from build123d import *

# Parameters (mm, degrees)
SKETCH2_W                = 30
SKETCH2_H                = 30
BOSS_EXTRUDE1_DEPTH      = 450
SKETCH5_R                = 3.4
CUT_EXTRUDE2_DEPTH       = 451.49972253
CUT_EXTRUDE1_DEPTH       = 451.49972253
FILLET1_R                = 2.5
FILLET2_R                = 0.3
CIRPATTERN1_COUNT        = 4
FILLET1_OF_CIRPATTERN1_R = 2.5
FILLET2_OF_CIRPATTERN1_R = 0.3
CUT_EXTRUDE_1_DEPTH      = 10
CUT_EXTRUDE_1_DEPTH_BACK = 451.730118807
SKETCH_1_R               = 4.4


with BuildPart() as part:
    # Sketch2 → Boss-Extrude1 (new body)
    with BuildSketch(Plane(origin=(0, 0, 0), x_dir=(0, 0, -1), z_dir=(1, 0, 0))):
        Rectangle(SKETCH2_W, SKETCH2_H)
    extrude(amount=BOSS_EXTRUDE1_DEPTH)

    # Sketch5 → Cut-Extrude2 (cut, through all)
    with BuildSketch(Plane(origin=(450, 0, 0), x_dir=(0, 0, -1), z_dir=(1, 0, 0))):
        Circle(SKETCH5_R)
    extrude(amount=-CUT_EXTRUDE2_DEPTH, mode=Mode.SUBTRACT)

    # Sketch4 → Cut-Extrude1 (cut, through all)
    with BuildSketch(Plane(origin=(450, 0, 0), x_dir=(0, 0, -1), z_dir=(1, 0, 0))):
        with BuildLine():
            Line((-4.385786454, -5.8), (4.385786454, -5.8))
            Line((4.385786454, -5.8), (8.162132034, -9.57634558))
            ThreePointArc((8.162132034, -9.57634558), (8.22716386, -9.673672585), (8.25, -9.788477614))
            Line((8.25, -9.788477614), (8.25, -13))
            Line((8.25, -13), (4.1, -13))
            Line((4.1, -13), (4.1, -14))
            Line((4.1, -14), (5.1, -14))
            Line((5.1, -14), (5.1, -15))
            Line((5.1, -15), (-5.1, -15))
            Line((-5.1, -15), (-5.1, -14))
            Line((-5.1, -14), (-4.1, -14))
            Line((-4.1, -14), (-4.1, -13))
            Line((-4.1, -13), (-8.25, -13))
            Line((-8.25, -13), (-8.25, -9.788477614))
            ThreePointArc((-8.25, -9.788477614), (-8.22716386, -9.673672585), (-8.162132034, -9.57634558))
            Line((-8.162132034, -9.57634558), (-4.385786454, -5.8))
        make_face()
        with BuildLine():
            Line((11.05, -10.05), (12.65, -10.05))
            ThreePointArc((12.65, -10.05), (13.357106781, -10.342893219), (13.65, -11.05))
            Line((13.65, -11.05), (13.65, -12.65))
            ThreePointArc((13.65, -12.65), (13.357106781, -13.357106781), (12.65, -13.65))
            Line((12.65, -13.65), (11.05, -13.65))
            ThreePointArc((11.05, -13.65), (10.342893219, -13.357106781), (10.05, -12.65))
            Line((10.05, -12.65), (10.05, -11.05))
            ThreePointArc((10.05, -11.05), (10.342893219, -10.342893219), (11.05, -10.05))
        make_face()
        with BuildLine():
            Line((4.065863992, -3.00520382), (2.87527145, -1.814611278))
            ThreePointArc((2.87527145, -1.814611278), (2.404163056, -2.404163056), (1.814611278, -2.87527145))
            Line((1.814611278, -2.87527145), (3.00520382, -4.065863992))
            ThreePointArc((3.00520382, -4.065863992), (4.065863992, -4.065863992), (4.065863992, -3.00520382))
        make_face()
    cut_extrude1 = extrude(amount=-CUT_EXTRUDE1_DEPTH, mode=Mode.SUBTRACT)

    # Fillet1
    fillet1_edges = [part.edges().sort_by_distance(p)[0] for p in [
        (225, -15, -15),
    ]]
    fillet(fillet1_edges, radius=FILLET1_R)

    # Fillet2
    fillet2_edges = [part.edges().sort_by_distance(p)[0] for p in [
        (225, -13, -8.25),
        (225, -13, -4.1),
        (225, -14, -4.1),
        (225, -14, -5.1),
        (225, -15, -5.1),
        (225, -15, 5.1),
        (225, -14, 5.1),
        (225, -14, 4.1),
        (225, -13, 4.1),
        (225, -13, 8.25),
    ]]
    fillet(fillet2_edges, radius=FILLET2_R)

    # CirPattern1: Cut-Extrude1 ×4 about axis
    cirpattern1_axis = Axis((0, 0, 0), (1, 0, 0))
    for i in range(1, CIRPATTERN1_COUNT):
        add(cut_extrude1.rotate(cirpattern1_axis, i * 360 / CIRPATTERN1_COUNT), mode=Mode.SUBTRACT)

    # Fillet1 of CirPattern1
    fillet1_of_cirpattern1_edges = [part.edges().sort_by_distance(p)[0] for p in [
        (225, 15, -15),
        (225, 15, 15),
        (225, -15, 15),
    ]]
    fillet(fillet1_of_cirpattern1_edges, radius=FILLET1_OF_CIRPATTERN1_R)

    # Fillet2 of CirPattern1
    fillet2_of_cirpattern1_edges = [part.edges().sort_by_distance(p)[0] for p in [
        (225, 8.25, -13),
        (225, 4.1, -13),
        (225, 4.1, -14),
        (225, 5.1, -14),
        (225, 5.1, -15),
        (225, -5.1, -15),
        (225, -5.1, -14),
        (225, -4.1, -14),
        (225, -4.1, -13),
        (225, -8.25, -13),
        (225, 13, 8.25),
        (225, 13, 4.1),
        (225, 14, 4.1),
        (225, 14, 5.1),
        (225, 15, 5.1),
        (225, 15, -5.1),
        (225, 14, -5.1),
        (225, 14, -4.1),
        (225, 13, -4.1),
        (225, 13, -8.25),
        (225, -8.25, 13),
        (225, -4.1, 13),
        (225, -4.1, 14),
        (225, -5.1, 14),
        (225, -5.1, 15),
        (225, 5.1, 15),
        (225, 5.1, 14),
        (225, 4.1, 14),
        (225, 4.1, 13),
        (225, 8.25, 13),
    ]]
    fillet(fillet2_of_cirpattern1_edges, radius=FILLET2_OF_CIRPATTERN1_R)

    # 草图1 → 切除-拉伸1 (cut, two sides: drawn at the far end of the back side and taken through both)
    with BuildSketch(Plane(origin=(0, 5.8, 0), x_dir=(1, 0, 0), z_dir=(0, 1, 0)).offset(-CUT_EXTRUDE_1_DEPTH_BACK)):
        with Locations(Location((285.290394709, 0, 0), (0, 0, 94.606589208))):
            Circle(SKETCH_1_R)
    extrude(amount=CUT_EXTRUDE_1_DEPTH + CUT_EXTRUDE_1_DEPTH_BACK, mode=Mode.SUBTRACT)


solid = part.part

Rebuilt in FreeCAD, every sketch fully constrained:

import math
import FreeCAD as App
import Part
import Sketcher


def edges_at(feature, points):
    """Names of the edges that pass closest to the given points."""
    edges = feature.Shape.Edges
    near = lambda p: min(range(len(edges)), key=lambda i: edges[i].distToShape(Part.Vertex(*p))[0])
    return sorted({f"Edge{near(p) + 1}" for p in points})

doc = App.newDocument("Part")
body = doc.addObject("PartDesign::Body", "Body")

# Sketch on YZ plane
sketch1 = body.newObject("Sketcher::SketchObject", "Sketch")
sketch1.AttachmentSupport = (doc.getObject("YZ_Plane"), [""])
sketch1.MapMode = "FlatFace"
sketch1.addGeometry(Part.LineSegment(App.Vector(15, 15, 0), App.Vector(-15, 15, 0)), False)
sketch1.addGeometry(Part.LineSegment(App.Vector(-15, 15, 0), App.Vector(-15, -15, 0)), False)
sketch1.addGeometry(Part.LineSegment(App.Vector(-15, -15, 0), App.Vector(15, -15, 0)), False)
sketch1.addGeometry(Part.LineSegment(App.Vector(15, -15, 0), App.Vector(15, 15, 0)), False)
sketch1.addConstraint(Sketcher.Constraint("Coincident", 0, 2, 1, 1))
sketch1.addConstraint(Sketcher.Constraint("Coincident", 1, 2, 2, 1))
sketch1.addConstraint(Sketcher.Constraint("Coincident", 2, 2, 3, 1))
sketch1.addConstraint(Sketcher.Constraint("Coincident", 3, 2, 0, 1))
sketch1.addConstraint(Sketcher.Constraint("Horizontal", 0))
sketch1.addConstraint(Sketcher.Constraint("Vertical", 1))
sketch1.addConstraint(Sketcher.Constraint("Horizontal", 2))
sketch1.addConstraint(Sketcher.Constraint("Vertical", 3))
sketch1.addConstraint(Sketcher.Constraint("Symmetric", 0, 2, 2, 2, -1, 1))
sketch1.addConstraint(Sketcher.Constraint("Equal", 2, 1))
sketch1.addConstraint(Sketcher.Constraint("DistanceX", 0, 2, 0, 1, 30.0))
pad1 = body.newObject("PartDesign::Pad", "Pad")
pad1.Profile = sketch1
pad1.Length = 450

# Sketch on YZ plane
sketch2 = body.newObject("Sketcher::SketchObject", "Sketch001")
sketch2.AttachmentSupport = (doc.getObject("YZ_Plane"), [""])
sketch2.MapMode = "FlatFace"
sketch2.AttachmentOffset = App.Placement(App.Vector(0, 0, 450), App.Rotation())
sketch2.addGeometry(Part.Circle(App.Vector(0, 0, 0), App.Vector(0, 0, 1), 3.4), False)
sketch2.addConstraint(Sketcher.Constraint("Coincident", 0, 3, -1, 1))
sketch2.addConstraint(Sketcher.Constraint("Diameter", 0, 6.8))
pocket1 = body.newObject("PartDesign::Pocket", "Pocket")
pocket1.Profile = sketch2
pocket1.Type = "ThroughAll"

# Sketch on YZ plane
sketch3 = body.newObject("Sketcher::SketchObject", "Sketch002")
sketch3.AttachmentSupport = (doc.getObject("YZ_Plane"), [""])
sketch3.MapMode = "FlatFace"
sketch3.AttachmentOffset = App.Placement(App.Vector(0, 0, 450), App.Rotation())
sketch3.addGeometry(Part.LineSegment(App.Vector(-5.8, -4.39, 0), App.Vector(-5.8, 4.39, 0)), False)
sketch3.addGeometry(Part.LineSegment(App.Vector(-5.8, 4.39, 0), App.Vector(-9.58, 8.16, 0)), False)
sketch3.addGeometry(Part.ArcOfCircle(Part.Circle(App.Vector(-9.79, 7.95, 0), App.Vector(0, 0, 1), 0.3), math.radians(45), math.radians(90)), False)
sketch3.addGeometry(Part.LineSegment(App.Vector(-9.79, 8.25, 0), App.Vector(-13, 8.25, 0)), False)
sketch3.addGeometry(Part.LineSegment(App.Vector(-13, 8.25, 0), App.Vector(-13, 4.1, 0)), False)
sketch3.addGeometry(Part.LineSegment(App.Vector(-13, 4.1, 0), App.Vector(-14, 4.1, 0)), False)
sketch3.addGeometry(Part.LineSegment(App.Vector(-14, 4.1, 0), App.Vector(-14, 5.1, 0)), False)
sketch3.addGeometry(Part.LineSegment(App.Vector(-14, 5.1, 0), App.Vector(-15, 5.1, 0)), False)
sketch3.addGeometry(Part.LineSegment(App.Vector(-15, 5.1, 0), App.Vector(-15, -5.1, 0)), False)
sketch3.addGeometry(Part.LineSegment(App.Vector(-15, -5.1, 0), App.Vector(-14, -5.1, 0)), False)
sketch3.addGeometry(Part.LineSegment(App.Vector(-14, -5.1, 0), App.Vector(-14, -4.1, 0)), False)
sketch3.addGeometry(Part.LineSegment(App.Vector(-14, -4.1, 0), App.Vector(-13, -4.1, 0)), False)
sketch3.addGeometry(Part.LineSegment(App.Vector(-13, -4.1, 0), App.Vector(-13, -8.25, 0)), False)
sketch3.addGeometry(Part.LineSegment(App.Vector(-13, -8.25, 0), App.Vector(-9.79, -8.25, 0)), False)
sketch3.addGeometry(Part.ArcOfCircle(Part.Circle(App.Vector(-9.79, -7.95, 0), App.Vector(0, 0, 1), 0.3), math.radians(-90), math.radians(-45)), False)
sketch3.addGeometry(Part.LineSegment(App.Vector(-9.58, -8.16, 0), App.Vector(-5.8, -4.39, 0)), False)
sketch3.addGeometry(Part.LineSegment(App.Vector(-10.05, -12.65, 0), App.Vector(-10.05, -11.05, 0)), False)
sketch3.addGeometry(Part.ArcOfCircle(Part.Circle(App.Vector(-11.05, -11.05, 0), App.Vector(0, 0, 1), 1), math.radians(0), math.radians(90)), False)
sketch3.addGeometry(Part.LineSegment(App.Vector(-11.05, -10.05, 0), App.Vector(-12.65, -10.05, 0)), False)
sketch3.addGeometry(Part.ArcOfCircle(Part.Circle(App.Vector(-12.65, -11.05, 0), App.Vector(0, 0, 1), 1), math.radians(90), math.radians(180)), False)
sketch3.addGeometry(Part.LineSegment(App.Vector(-13.65, -11.05, 0), App.Vector(-13.65, -12.65, 0)), False)
sketch3.addGeometry(Part.ArcOfCircle(Part.Circle(App.Vector(-12.65, -12.65, 0), App.Vector(0, 0, 1), 1), math.radians(-180), math.radians(-90)), False)
sketch3.addGeometry(Part.LineSegment(App.Vector(-12.65, -13.65, 0), App.Vector(-11.05, -13.65, 0)), False)
sketch3.addGeometry(Part.ArcOfCircle(Part.Circle(App.Vector(-11.05, -12.65, 0), App.Vector(0, 0, 1), 1), math.radians(-90), math.radians(0)), False)
sketch3.addGeometry(Part.LineSegment(App.Vector(-3.01, -4.07, 0), App.Vector(-1.81, -2.88, 0)), False)
sketch3.addGeometry(Part.ArcOfCircle(Part.Circle(App.Vector(0, 0, 0), App.Vector(0, 0, 1), 3.4), math.radians(-148), math.radians(-122)), False)
sketch3.addGeometry(Part.LineSegment(App.Vector(-2.88, -1.81, 0), App.Vector(-4.07, -3.01, 0)), False)
sketch3.addGeometry(Part.ArcOfCircle(Part.Circle(App.Vector(-3.54, -3.54, 0), App.Vector(0, 0, 1), 0.75), math.radians(135), math.radians(315)), False)
sketch3.addConstraint(Sketcher.Constraint("Coincident", 0, 2, 1, 1))
sketch3.addConstraint(Sketcher.Constraint("Tangent", 1, 2, 2, 1))
sketch3.addConstraint(Sketcher.Constraint("Tangent", 2, 2, 3, 1))
sketch3.addConstraint(Sketcher.Constraint("Coincident", 3, 2, 4, 1))
sketch3.addConstraint(Sketcher.Constraint("Coincident", 4, 2, 5, 1))
sketch3.addConstraint(Sketcher.Constraint("Coincident", 5, 2, 6, 1))
sketch3.addConstraint(Sketcher.Constraint("Coincident", 6, 2, 7, 1))
sketch3.addConstraint(Sketcher.Constraint("Coincident", 7, 2, 8, 1))
sketch3.addConstraint(Sketcher.Constraint("Coincident", 8, 2, 9, 1))
sketch3.addConstraint(Sketcher.Constraint("Coincident", 9, 2, 10, 1))
sketch3.addConstraint(Sketcher.Constraint("Coincident", 10, 2, 11, 1))
sketch3.addConstraint(Sketcher.Constraint("Coincident", 11, 2, 12, 1))
sketch3.addConstraint(Sketcher.Constraint("Coincident", 12, 2, 13, 1))
sketch3.addConstraint(Sketcher.Constraint("Tangent", 13, 2, 14, 1))
sketch3.addConstraint(Sketcher.Constraint("Tangent", 14, 2, 15, 1))
sketch3.addConstraint(Sketcher.Constraint("Coincident", 15, 2, 0, 1))
sketch3.addConstraint(Sketcher.Constraint("Tangent", 16, 2, 17, 1))
sketch3.addConstraint(Sketcher.Constraint("Tangent", 17, 2, 18, 1))
sketch3.addConstraint(Sketcher.Constraint("Tangent", 18, 2, 19, 1))
sketch3.addConstraint(Sketcher.Constraint("Tangent", 19, 2, 20, 1))
sketch3.addConstraint(Sketcher.Constraint("Tangent", 20, 2, 21, 1))
sketch3.addConstraint(Sketcher.Constraint("Tangent", 21, 2, 22, 1))
sketch3.addConstraint(Sketcher.Constraint("Tangent", 22, 2, 23, 1))
sketch3.addConstraint(Sketcher.Constraint("Tangent", 23, 2, 16, 1))
sketch3.addConstraint(Sketcher.Constraint("Coincident", 24, 2, 25, 2))
sketch3.addConstraint(Sketcher.Constraint("Coincident", 25, 1, 26, 1))
sketch3.addConstraint(Sketcher.Constraint("Tangent", 26, 2, 27, 1))
sketch3.addConstraint(Sketcher.Constraint("Tangent", 27, 2, 24, 1))
sketch3.addConstraint(Sketcher.Constraint("Vertical", 0))
sketch3.addConstraint(Sketcher.Constraint("Horizontal", 3))
sketch3.addConstraint(Sketcher.Constraint("Vertical", 4))
sketch3.addConstraint(Sketcher.Constraint("Horizontal", 5))
sketch3.addConstraint(Sketcher.Constraint("Vertical", 6))
sketch3.addConstraint(Sketcher.Constraint("Horizontal", 7))
sketch3.addConstraint(Sketcher.Constraint("Vertical", 8))
sketch3.addConstraint(Sketcher.Constraint("Horizontal", 9))
sketch3.addConstraint(Sketcher.Constraint("Vertical", 10))
sketch3.addConstraint(Sketcher.Constraint("Horizontal", 11))
sketch3.addConstraint(Sketcher.Constraint("Vertical", 12))
sketch3.addConstraint(Sketcher.Constraint("Horizontal", 13))
sketch3.addConstraint(Sketcher.Constraint("Vertical", 16))
sketch3.addConstraint(Sketcher.Constraint("Horizontal", 18))
sketch3.addConstraint(Sketcher.Constraint("Vertical", 20))
sketch3.addConstraint(Sketcher.Constraint("Horizontal", 22))
sketch3.addConstraint(Sketcher.Constraint("Coincident", 25, 3, -1, 1))
sketch3.addConstraint(Sketcher.Constraint("Equal", 2, 14))
sketch3.addConstraint(Sketcher.Constraint("Equal", 17, 19))
sketch3.addConstraint(Sketcher.Constraint("Equal", 19, 21))
sketch3.addConstraint(Sketcher.Constraint("Equal", 21, 23))
sketch3.addConstraint(Sketcher.Constraint("Symmetric", 2, 3, 14, 3, -1))
sketch3.addConstraint(Sketcher.Constraint("Symmetric", 6, 2, 9, 2, -1))
sketch3.addConstraint(Sketcher.Constraint("Symmetric", 4, 2, 11, 2, -1))
sketch3.addConstraint(Sketcher.Constraint("Perpendicular", 1, 15))
sketch3.addConstraint(Sketcher.Constraint("Parallel", 15, 24))
sketch3.addConstraint(Sketcher.Constraint("Parallel", 24, 26))
sketch3.addConstraint(Sketcher.Constraint("Vertical", 1, 2, 14, 2))
sketch3.addConstraint(Sketcher.Constraint("Equal", 5, 7))
sketch3.addConstraint(Sketcher.Constraint("Equal", 11, 6))
sketch3.addConstraint(Sketcher.Constraint("Equal", 22, 16))
sketch3.addConstraint(Sketcher.Constraint("Equal", 24, 26))
sketch3.addConstraint(Sketcher.Constraint("Radius", 17, 1.0))
sketch3.addConstraint(Sketcher.Constraint("Radius", 2, 0.3))
sketch3.addConstraint(Sketcher.Constraint("Radius", 25, 3.4))
sketch3.addConstraint(Sketcher.Constraint("DistanceX", 5, 2, 5, 1, 1.0))
sketch3.addConstraint(Sketcher.Constraint("Radius", 27, 0.75))
sketch3.addConstraint(Sketcher.Constraint("DistanceX", 18, 2, 18, 1, 1.6))
sketch3.addConstraint(Sketcher.Constraint("DistanceY", 8, 2, 8, 1, 10.2))
sketch3.addConstraint(Sketcher.Constraint("DistanceX", 3, 2, -1, 1, 13.0))
sketch3.addConstraint(Sketcher.Constraint("DistanceY", 17, 3, 2, 3, 19.0))
sketch3.addConstraint(Sketcher.Constraint("DistanceY", 4, 2, 4, 1, 4.15))
sketch3.addConstraint(Sketcher.Constraint("DistanceX", 0, 2, -1, 1, 5.8))
sketch3.addConstraint(Sketcher.Constraint("DistanceX", 17, 3, -1, 1, 11.05))
sketch3.addConstraint(Sketcher.Constraint("Distance", 1, 5.340559))
sketch3.addConstraint(Sketcher.Constraint("DistanceY", 27, 3, 0, 2, 7.92132))
pocket2 = body.newObject("PartDesign::Pocket", "Pocket001")
pocket2.Profile = sketch3
pocket2.Type = "ThroughAll"
doc.recompute()

fillet = body.newObject("PartDesign::Fillet", "Fillet")
fillet.Base = (pocket2, edges_at(pocket2, [(225, -15, -15)]))
fillet.Radius = 2.5
doc.recompute()

fillet2 = body.newObject("PartDesign::Fillet", "Fillet001")
fillet2.Base = (fillet, edges_at(fillet, [
    (225, -13, -8.25),
    (225, -13, -4.1),
    (225, -14, -4.1),
    (225, -14, -5.1),
    (225, -15, -5.1),
    (225, -15, 5.1),
    (225, -14, 5.1),
    (225, -14, 4.1),
    (225, -13, 4.1),
    (225, -13, 8.25),
]))
fillet2.Radius = 0.3
doc.recompute()

polarpattern = body.newObject("PartDesign::PolarPattern", "PolarPattern")
polarpattern.Originals = [pocket2]
polarpattern.Axis = (doc.getObject("X_Axis"), [""])
polarpattern.Angle = 360
polarpattern.Occurrences = 4
body.Tip = polarpattern
doc.recompute()

fillet3 = body.newObject("PartDesign::Fillet", "Fillet002")
fillet3.Base = (polarpattern, edges_at(polarpattern, [(225, 15, -15), (225, 15, 15), (225, -15, 15)]))
fillet3.Radius = 2.5
doc.recompute()

fillet4 = body.newObject("PartDesign::Fillet", "Fillet003")
fillet4.Base = (fillet3, edges_at(fillet3, [
    (225, 8.25, -13),
    (225, 4.1, -13),
    (225, 4.1, -14),
    (225, 5.1, -14),
    (225, 5.1, -15),
    (225, -5.1, -15),
    (225, -5.1, -14),
    (225, -4.1, -14),
    (225, -4.1, -13),
    (225, -8.25, -13),
    (225, 13, 8.25),
    (225, 13, 4.1),
    (225, 14, 4.1),
    (225, 14, 5.1),
    (225, 15, 5.1),
    (225, 15, -5.1),
    (225, 14, -5.1),
    (225, 14, -4.1),
    (225, 13, -4.1),
    (225, 13, -8.25),
    (225, -8.25, 13),
    (225, -4.1, 13),
    (225, -4.1, 14),
    (225, -5.1, 14),
    (225, -5.1, 15),
    (225, 5.1, 15),
    (225, 5.1, 14),
    (225, 4.1, 14),
    (225, 4.1, 13),
    (225, 8.25, 13),
]))
fillet4.Radius = 0.3

# Sketch on XZ plane
sketch4 = body.newObject("Sketcher::SketchObject", "Sketch003")
sketch4.AttachmentSupport = (doc.getObject("XZ_Plane"), [""])
sketch4.MapMode = "FlatFace"
sketch4.AttachmentOffset = App.Placement(App.Vector(0, 0, -5.8), App.Rotation())
sketch4.addGeometry(Part.Circle(App.Vector(285.3, 0, 0), App.Vector(0, 0, 1), 4.4), False)
sketch4.addConstraint(Sketcher.Constraint("PointOnObject", 0, 3, -1))
sketch4.addConstraint(Sketcher.Constraint("Diameter", 0, 8.8))
sketch4.addConstraint(Sketcher.Constraint("DistanceX", -1, 1, 0, 3, 285.290395))
pocket3 = body.newObject("PartDesign::Pocket", "Pocket002")
pocket3.Profile = sketch4
pocket3.Type = "ThroughAll"
pocket3.Midplane = True

doc.recompute()
